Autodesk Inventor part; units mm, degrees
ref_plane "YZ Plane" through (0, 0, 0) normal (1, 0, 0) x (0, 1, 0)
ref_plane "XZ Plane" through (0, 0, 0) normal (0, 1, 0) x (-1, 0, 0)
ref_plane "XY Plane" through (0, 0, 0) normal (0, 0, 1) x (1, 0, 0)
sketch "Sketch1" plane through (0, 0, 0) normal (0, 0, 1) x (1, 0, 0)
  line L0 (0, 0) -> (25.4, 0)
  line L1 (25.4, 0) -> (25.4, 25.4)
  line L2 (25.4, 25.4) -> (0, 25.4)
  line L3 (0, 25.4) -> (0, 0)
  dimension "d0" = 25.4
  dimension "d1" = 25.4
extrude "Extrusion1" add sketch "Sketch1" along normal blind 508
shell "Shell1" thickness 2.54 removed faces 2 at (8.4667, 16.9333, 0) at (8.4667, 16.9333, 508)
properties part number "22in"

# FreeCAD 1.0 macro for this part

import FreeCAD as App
import Part
import Sketcher

V = App.Vector
Q = App.Units.Quantity


def faces_at(feature, points):
    """Names of the faces that lie closest to the given points."""
    faces = feature.Shape.Faces
    near = lambda p: min(range(len(faces)), key=lambda i: faces[i].distToShape(Part.Vertex(*p))[0])
    return sorted({f"Face{near(p) + 1}" for p in points})

doc = App.newDocument("Part")
body = doc.addObject("PartDesign::Body", "Body")

# Sketch on XY plane
sketch1 = body.newObject("Sketcher::SketchObject", "Sketch")
sketch1.AttachmentSupport = (doc.getObject("XY_Plane"), [""])
sketch1.MapMode = "FlatFace"
sketch1.addGeometry([
    Part.LineSegment(V(0, 25, 0), V(0, 0, 0)),
    Part.LineSegment(V(0, 0, 0), V(25, 0, 0)),
    Part.LineSegment(V(25, 0, 0), V(25, 25, 0)),
    Part.LineSegment(V(25, 25, 0), V(0, 25, 0)),
], False)
sketch1.addConstraint([
    Sketcher.Constraint("Coincident", 0, 2, 1, 1),
    Sketcher.Constraint("Coincident", 1, 2, 2, 1),
    Sketcher.Constraint("Coincident", 2, 2, 3, 1),
    Sketcher.Constraint("Coincident", 3, 2, 0, 1),
    Sketcher.Constraint("Vertical", 0),
    Sketcher.Constraint("Horizontal", 1),
    Sketcher.Constraint("Vertical", 2),
    Sketcher.Constraint("Horizontal", 3),
    Sketcher.Constraint("Coincident", 0, 2, -1, 1),
    Sketcher.Constraint("Equal", 3, 0),
    Sketcher.Constraint("DistanceX", 1, 1, 1, 2, Q("1 in")),
])
pad1 = body.newObject("PartDesign::Pad", "Pad")
pad1.Profile = sketch1
pad1.Length = Q("20 in")
doc.recompute()

thickness = body.newObject("PartDesign::Thickness", "Thickness")
thickness.Base = (pad1, faces_at(pad1, [(8.467, 16.933, 0), (8.467, 16.933, 508)]))
thickness.Value = Q("0.1 in")
thickness.Reversed = True
thickness.Join = "Intersection"

doc.recompute()
